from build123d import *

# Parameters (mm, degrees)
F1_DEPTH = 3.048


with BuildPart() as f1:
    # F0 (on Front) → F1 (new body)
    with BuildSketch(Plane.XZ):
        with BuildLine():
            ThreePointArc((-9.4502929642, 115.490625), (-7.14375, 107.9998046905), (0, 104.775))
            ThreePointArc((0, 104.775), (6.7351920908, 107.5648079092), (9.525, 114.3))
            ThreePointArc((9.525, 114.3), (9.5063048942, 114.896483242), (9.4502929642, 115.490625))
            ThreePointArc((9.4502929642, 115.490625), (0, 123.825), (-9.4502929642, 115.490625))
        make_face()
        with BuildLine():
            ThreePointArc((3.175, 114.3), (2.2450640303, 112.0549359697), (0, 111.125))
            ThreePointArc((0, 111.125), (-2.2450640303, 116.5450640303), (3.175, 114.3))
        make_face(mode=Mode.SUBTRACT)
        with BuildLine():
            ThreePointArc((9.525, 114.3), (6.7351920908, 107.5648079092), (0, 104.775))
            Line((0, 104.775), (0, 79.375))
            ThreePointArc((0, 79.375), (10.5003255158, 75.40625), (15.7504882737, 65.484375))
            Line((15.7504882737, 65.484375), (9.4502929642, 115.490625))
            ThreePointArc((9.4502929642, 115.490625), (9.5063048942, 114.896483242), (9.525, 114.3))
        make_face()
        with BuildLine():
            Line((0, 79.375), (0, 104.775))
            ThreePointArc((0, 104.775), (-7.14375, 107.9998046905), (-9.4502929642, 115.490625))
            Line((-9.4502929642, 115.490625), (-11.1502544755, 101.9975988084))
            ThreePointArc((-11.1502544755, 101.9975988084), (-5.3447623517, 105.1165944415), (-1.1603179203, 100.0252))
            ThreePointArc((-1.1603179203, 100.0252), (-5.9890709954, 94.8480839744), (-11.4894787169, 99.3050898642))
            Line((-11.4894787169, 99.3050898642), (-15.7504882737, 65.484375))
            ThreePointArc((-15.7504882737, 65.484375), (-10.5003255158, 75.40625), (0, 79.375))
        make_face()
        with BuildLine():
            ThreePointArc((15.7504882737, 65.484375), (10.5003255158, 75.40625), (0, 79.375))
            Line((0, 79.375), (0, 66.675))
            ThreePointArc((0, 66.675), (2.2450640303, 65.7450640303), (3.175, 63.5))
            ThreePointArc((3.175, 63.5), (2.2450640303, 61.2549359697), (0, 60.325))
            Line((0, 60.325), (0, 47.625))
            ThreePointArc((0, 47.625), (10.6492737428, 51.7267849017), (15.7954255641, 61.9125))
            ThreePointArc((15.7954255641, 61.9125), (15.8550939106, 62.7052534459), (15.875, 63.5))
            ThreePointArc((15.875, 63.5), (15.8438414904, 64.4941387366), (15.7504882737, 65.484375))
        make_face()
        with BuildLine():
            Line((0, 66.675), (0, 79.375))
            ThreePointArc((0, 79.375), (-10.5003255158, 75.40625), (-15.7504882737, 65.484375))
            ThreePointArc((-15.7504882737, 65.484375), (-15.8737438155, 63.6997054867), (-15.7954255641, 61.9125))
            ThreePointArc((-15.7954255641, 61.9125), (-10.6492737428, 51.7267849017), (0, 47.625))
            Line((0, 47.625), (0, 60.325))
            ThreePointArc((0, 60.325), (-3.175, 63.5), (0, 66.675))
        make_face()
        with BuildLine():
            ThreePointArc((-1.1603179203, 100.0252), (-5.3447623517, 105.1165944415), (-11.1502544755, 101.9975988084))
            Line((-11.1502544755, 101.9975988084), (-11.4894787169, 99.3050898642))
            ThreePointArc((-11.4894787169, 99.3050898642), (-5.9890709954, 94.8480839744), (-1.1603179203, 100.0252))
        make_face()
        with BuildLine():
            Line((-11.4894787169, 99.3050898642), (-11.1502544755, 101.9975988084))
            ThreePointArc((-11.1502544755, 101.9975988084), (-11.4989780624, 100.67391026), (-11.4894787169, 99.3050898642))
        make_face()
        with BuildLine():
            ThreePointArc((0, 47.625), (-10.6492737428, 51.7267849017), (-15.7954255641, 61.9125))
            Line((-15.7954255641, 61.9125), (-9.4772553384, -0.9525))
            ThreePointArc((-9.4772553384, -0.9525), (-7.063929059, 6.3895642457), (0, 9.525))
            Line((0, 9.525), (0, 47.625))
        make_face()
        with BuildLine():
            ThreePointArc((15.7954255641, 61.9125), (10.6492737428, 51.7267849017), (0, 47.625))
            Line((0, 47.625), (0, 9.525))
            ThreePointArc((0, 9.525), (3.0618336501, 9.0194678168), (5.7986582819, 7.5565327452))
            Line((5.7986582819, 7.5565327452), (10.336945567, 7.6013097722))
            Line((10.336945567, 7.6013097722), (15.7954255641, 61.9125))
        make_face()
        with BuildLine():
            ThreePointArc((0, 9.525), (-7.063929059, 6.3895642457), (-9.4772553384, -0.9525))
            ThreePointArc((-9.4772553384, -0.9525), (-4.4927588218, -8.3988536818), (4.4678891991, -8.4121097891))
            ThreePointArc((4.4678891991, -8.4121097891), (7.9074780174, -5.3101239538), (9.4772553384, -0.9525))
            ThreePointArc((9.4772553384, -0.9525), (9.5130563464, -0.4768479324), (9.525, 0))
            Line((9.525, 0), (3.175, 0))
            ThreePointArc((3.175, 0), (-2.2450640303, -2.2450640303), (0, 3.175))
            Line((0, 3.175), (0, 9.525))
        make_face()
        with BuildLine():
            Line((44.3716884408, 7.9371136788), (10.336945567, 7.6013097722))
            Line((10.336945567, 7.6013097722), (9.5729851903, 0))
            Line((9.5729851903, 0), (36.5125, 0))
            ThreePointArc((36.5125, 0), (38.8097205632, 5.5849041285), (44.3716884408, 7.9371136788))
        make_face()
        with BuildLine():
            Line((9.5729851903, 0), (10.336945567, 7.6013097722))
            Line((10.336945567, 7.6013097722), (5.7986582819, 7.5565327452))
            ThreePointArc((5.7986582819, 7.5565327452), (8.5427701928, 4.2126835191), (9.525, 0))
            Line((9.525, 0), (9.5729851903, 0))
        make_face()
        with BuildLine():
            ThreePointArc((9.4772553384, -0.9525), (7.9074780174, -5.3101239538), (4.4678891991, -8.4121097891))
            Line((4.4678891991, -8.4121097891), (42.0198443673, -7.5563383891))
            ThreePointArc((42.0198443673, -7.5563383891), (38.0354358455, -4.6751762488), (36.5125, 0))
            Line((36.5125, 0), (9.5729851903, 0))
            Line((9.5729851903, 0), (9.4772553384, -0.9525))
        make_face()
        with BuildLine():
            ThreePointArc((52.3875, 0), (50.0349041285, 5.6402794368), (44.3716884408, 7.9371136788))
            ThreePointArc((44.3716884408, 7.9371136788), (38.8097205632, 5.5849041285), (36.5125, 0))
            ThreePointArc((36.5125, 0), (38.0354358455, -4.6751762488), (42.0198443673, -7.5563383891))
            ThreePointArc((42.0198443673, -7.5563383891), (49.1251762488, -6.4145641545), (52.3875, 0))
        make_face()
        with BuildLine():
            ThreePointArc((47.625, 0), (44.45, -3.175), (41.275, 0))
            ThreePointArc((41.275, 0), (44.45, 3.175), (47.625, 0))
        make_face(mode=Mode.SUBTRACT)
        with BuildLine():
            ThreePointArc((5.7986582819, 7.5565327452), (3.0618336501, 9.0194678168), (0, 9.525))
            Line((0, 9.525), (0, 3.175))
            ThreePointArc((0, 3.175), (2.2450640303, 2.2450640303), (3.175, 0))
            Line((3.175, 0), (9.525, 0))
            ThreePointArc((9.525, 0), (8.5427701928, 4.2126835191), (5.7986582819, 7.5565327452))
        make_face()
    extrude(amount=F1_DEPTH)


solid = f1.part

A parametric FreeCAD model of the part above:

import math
import FreeCAD as App
import Part
import Sketcher

V = App.Vector
Q = App.Units.Quantity

doc = App.newDocument("Part")
params = doc.addObject("Spreadsheet::Sheet", "Params")
for row, (alias, value) in enumerate([
    ("sketch1_diameter", "0.25 in"),
    ("sketch1_radius", "0.375 in"),
    ("sketch1_radius2", "0.3125 in"),
    ("sketch1_radius3", "0.625 in"),
    ("pad1_length", "0.12 in"),
], start=1):
    params.set(f"A{row}", alias)
    params.set(f"B{row}", "=" + value)
    params.setAlias(f"B{row}", alias)

body = doc.addObject("PartDesign::Body", "Body")

sketch1 = body.newObject("Sketcher::SketchObject", "Sketch")
sketch1.AttachmentSupport = (doc.getObject("XZ_Plane"), [""])
sketch1.MapMode = "FlatFace"
sketch1.addGeometry([
    Part.ArcOfCircle(Part.Circle(V(0, 0, 0), V(0, 0, 1), 9.525), math.radians(-174.26083), math.radians(-62.026072)),
    Part.LineSegment(V(4.467889, -8.41211, 0), V(42.019844, -7.556338, 0)),
    Part.ArcOfCircle(Part.Circle(V(44.45, 0, 0), V(0, 0, 1), 7.9375), math.radians(-107.828047), math.radians(0)),
    Part.ArcOfCircle(Part.Circle(V(44.45, 0, 0), V(0, 0, 1), 7.9375), math.radians(0), math.radians(90.565291)),
    Part.LineSegment(V(44.371688, 7.937114, 0), V(10.336946, 7.60131, 0)),
    Part.LineSegment(V(10.336946, 7.60131, 0), V(15.795426, 61.9125, 0)),
    Part.ArcOfCircle(Part.Circle(V(0, 63.5, 0), V(0, 0, 1), 15.875), math.radians(-5.73917), math.radians(0)),
    Part.ArcOfCircle(Part.Circle(V(0, 63.5, 0), V(0, 0, 1), 15.875), math.radians(0), math.radians(7.180756)),
    Part.LineSegment(V(15.750488, 65.484375, 0), V(9.450293, 115.490625, 0)),
    Part.ArcOfCircle(Part.Circle(V(0, 114.3, 0), V(0, 0, 1), 9.525), math.radians(7.180756), math.radians(172.819244)),
    Part.LineSegment(V(-9.450293, 115.490625, 0), V(-11.150254, 101.997599, 0)),
    Part.ArcOfCircle(Part.Circle(V(-6.35, 100.0252, 0), V(0, 0, 1), 5.189682), math.radians(157.662502), math.radians(187.975986)),
    Part.LineSegment(V(-11.489479, 99.30509, 0), V(-15.750488, 65.484375, 0)),
    Part.ArcOfCircle(Part.Circle(V(0, 63.5, 0), V(0, 0, 1), 15.875), math.radians(172.819244), math.radians(185.73917)),
    Part.LineSegment(V(-15.795426, 61.9125, 0), V(-9.477255, -0.9525, 0)),
    Part.ArcOfCircle(Part.Circle(V(0, 0, 0), V(0, 0, 1), 3.175), math.radians(90), math.radians(360)),
    Part.ArcOfCircle(Part.Circle(V(0, 0, 0), V(0, 0, 1), 3.175), math.radians(0), math.radians(90)),
    Part.ArcOfCircle(Part.Circle(V(0, 0, 0), V(0, 0, 1), 9.525), math.radians(-5.73917), math.radians(0)),
    Part.LineSegment(V(9.525, 0, 0), V(9.572985, 0, 0)),
    Part.LineSegment(V(9.572985, 0, 0), V(9.477255, -0.9525, 0)),
    Part.Circle(V(44.45, 0, 0), V(0, 0, 1), 3.175),
    Part.ArcOfCircle(Part.Circle(V(0, 63.5, 0), V(0, 0, 1), 3.175), math.radians(0), math.radians(90)),
    Part.ArcOfCircle(Part.Circle(V(0, 63.5, 0), V(0, 0, 1), 3.175), math.radians(-90), math.radians(0)),
    Part.ArcOfCircle(Part.Circle(V(0, 63.5, 0), V(0, 0, 1), 3.175), math.radians(90), math.radians(270)),
    Part.ArcOfCircle(Part.Circle(V(0, 114.3, 0), V(0, 0, 1), 3.175), math.radians(0), math.radians(270)),
    Part.ArcOfCircle(Part.Circle(V(0, 114.3, 0), V(0, 0, 1), 3.175), math.radians(-90), math.radians(0)),
], False)
sketch1.addConstraint([
    Sketcher.Constraint("Coincident", 0, 2, 1, 1),
    Sketcher.Constraint("Coincident", 1, 2, 2, 1),
    Sketcher.Constraint("Tangent", 2, 2, 3, 1),
    Sketcher.Constraint("Tangent", 3, 2, 4, 1),
    Sketcher.Constraint("Coincident", 4, 2, 5, 1),
    Sketcher.Constraint("Tangent", 5, 2, 6, 1),
    Sketcher.Constraint("Tangent", 6, 2, 7, 1),
    Sketcher.Constraint("Tangent", 7, 2, 8, 1),
    Sketcher.Constraint("Tangent", 8, 2, 9, 1),
    Sketcher.Constraint("Tangent", 9, 2, 10, 1),
    Sketcher.Constraint("Coincident", 10, 2, 11, 1),
    Sketcher.Constraint("Coincident", 11, 2, 12, 1),
    Sketcher.Constraint("Tangent", 12, 2, 13, 1),
    Sketcher.Constraint("Tangent", 13, 2, 14, 1),
    Sketcher.Constraint("Tangent", 14, 2, 0, 1),
    Sketcher.Constraint("Tangent", 15, 1, 16, 2),
    Sketcher.Constraint("Coincident", 16, 1, 15, 2),
    Sketcher.Constraint("Coincident", 17, 2, 18, 1),
    Sketcher.Constraint("Coincident", 18, 2, 19, 1),
    Sketcher.Constraint("Tangent", 19, 2, 17, 1),
    Sketcher.Constraint("Tangent", 21, 1, 22, 2),
    Sketcher.Constraint("Tangent", 22, 1, 23, 2),
    Sketcher.Constraint("Tangent", 23, 1, 21, 2),
    Sketcher.Constraint("Tangent", 24, 1, 25, 2),
    Sketcher.Constraint("Coincident", 25, 1, 24, 2),
    Sketcher.Constraint("Horizontal", 18),
    Sketcher.Constraint("Coincident", 0, 3, -1, 1),
    Sketcher.Constraint("Coincident", 15, 3, -1, 1),
    Sketcher.Constraint("Coincident", 17, 3, -1, 1),
    Sketcher.Constraint("Coincident", 13, 3, 6, 3),
    Sketcher.Constraint("Coincident", 20, 3, 2, 3),
    Sketcher.Constraint("Coincident", 21, 3, 6, 3),
    Sketcher.Constraint("Coincident", 24, 3, 9, 3),
    Sketcher.Constraint("Equal", 2, 3),
    Sketcher.Constraint("Equal", 6, 7),
    Sketcher.Constraint("Equal", 0, 9),
    Sketcher.Constraint("Equal", 7, 13),
    Sketcher.Constraint("Equal", 9, 17),
    Sketcher.Constraint("Equal", 16, 20),
    Sketcher.Constraint("Equal", 20, 21),
    Sketcher.Constraint("Equal", 23, 24),
    Sketcher.Constraint("Symmetric", 8, 2, 9, 2, -2),
    Sketcher.Constraint("Symmetric", 7, 2, 12, 2, -2),
    Sketcher.Constraint("PointOnObject", 2, 3, -1),
    Sketcher.Constraint("PointOnObject", 2, 2, -1),
    Sketcher.Constraint("PointOnObject", 15, 1, -2),
    Sketcher.Constraint("PointOnObject", 16, 1, -1),
    Sketcher.Constraint("PointOnObject", 17, 2, -1),
    Sketcher.Constraint("PointOnObject", 22, 1, -2),
    Sketcher.Constraint("PointOnObject", 23, 1, -2),
    Sketcher.Constraint("PointOnObject", 25, 1, -2),
    Sketcher.Constraint("Parallel", 5, 19),
    Sketcher.Constraint("Horizontal", 23, 3, 6, 2),
    Sketcher.Constraint("Horizontal", 5, 2, 13, 2),
    Sketcher.Constraint("Horizontal", 6, 2, 21, 1),
    Sketcher.Constraint("Horizontal", 25, 3, 24, 1),
    Sketcher.Constraint("Diameter", 20, Q("0.25 in")),
    Sketcher.Constraint("Radius", 0, Q("0.375 in")),
    Sketcher.Constraint("Radius", 2, Q("0.3125 in")),
    Sketcher.Constraint("Radius", 6, Q("0.625 in")),
    Sketcher.Constraint("DistanceY", 6, 3, 9, 3, Q("2 in")),
    Sketcher.Constraint("DistanceX", 11, 3, 2, 3, Q("2 in")),
    Sketcher.Constraint("DistanceY", -1, 1, 6, 3, Q("2.5 in")),
    Sketcher.Constraint("DistanceX", -1, 1, 2, 3, Q("1.75 in")),
    Sketcher.Constraint("DistanceY", -1, 1, 11, 3, Q("3.938 in")),
    Sketcher.Constraint("Radius", 11, Q("5.189682 mm")),
    Sketcher.Constraint("Distance", 4, Q("34.036399 mm")),
    Sketcher.Constraint("DistanceX", -1, 1, 0, 2, Q("4.467889 mm")),
    Sketcher.Constraint("DistanceY", 1, 2, -1, 1, Q("7.556338 mm")),
])
sketch1.setExpression("Constraints[56]", "Params.sketch1_diameter")
sketch1.setExpression("Constraints[57]", "Params.sketch1_radius")
sketch1.setExpression("Constraints[58]", "Params.sketch1_radius2")
sketch1.setExpression("Constraints[59]", "Params.sketch1_radius3")
pad1 = body.newObject("PartDesign::Pad", "Pad")
pad1.Profile = sketch1
pad1.setExpression("Length", "Params.pad1_length")

doc.recompute()
